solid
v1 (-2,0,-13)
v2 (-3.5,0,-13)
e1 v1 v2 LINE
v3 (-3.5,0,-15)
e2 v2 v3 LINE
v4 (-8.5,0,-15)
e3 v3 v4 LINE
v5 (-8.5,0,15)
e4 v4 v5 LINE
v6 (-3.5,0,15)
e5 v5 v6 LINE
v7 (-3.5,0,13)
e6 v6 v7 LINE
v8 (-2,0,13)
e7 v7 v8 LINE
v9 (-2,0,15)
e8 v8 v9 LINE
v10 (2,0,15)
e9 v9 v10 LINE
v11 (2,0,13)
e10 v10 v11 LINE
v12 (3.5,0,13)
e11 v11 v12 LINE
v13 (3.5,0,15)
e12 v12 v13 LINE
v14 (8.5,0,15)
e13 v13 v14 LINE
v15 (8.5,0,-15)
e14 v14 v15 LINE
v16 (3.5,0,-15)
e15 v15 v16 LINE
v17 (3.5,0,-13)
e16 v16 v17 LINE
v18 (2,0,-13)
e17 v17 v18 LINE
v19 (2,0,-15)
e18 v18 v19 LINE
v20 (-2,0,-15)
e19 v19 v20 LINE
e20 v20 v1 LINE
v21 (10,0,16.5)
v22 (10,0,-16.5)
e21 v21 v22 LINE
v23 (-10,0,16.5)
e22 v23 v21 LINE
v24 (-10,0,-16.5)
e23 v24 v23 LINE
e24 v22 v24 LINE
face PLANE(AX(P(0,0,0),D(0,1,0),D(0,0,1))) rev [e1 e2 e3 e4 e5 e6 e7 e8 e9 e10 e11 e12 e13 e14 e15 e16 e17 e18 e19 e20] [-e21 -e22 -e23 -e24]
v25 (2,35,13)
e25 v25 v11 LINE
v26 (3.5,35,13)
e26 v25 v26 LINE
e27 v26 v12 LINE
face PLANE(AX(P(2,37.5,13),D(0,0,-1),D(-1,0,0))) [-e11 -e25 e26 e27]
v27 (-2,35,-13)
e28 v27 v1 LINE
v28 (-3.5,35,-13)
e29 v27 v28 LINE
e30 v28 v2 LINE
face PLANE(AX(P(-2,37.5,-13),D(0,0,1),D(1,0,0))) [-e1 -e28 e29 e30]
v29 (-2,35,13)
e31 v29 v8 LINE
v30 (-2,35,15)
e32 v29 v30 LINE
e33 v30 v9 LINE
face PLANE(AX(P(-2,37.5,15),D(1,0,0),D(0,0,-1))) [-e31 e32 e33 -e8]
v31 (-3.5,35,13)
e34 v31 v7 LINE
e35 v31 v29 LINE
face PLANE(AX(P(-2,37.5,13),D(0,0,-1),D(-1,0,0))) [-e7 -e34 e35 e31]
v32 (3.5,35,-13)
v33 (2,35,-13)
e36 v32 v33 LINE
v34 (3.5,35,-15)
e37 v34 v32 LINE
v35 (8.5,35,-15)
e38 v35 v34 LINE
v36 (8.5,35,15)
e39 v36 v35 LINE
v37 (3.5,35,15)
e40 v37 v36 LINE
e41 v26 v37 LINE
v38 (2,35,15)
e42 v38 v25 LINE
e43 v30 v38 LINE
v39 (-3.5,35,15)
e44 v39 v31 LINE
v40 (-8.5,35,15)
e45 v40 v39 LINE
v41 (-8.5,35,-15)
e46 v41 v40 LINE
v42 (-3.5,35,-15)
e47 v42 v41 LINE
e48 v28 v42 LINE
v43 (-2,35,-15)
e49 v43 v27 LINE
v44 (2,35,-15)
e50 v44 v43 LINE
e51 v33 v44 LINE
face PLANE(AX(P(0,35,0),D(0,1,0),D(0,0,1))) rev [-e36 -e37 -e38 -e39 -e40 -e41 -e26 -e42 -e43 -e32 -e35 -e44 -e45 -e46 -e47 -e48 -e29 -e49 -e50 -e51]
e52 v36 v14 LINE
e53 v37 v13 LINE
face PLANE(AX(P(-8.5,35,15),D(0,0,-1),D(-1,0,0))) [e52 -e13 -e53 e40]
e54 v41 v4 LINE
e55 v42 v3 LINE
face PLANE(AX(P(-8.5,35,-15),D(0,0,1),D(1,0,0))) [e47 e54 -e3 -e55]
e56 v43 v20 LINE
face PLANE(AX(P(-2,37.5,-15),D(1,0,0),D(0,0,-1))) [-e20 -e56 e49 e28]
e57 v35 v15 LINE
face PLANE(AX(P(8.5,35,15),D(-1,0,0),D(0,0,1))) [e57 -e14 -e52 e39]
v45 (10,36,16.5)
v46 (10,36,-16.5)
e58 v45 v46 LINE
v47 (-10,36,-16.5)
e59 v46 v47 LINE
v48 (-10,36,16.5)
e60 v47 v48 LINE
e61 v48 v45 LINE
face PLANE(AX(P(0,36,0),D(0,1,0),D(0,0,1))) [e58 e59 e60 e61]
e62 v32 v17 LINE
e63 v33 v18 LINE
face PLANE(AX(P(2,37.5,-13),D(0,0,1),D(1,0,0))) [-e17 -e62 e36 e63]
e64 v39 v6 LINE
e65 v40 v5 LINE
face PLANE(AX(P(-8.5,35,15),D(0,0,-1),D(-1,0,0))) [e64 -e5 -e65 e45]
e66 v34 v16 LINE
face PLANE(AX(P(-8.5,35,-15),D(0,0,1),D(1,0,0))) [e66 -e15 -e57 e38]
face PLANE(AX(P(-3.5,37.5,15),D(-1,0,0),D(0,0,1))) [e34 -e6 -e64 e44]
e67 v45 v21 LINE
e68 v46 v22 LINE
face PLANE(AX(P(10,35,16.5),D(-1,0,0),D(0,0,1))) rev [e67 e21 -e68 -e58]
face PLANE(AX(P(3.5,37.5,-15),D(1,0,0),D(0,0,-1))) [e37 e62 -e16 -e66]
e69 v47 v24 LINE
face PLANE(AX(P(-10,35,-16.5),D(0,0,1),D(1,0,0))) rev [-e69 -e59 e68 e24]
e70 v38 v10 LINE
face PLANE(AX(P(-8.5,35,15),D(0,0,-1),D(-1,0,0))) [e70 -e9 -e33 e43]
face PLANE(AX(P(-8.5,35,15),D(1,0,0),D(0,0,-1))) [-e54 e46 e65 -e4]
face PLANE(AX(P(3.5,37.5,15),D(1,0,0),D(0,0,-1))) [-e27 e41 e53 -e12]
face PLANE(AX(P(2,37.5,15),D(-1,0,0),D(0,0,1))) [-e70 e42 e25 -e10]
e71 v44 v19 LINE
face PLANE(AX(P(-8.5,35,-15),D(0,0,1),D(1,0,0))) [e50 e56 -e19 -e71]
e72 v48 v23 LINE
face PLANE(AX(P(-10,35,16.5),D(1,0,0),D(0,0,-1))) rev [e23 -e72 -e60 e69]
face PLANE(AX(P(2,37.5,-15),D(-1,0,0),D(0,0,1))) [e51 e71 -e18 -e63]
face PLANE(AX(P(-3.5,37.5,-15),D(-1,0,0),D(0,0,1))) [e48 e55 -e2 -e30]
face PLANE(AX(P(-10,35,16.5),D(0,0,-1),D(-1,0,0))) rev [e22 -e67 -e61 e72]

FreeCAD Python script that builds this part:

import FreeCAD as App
import Part
import Sketcher
from FreeCAD import Vector
Q = App.Units.Quantity


def add_polygon(sketch, points):
    """Adds a closed chain of lines whose ends are joined by coincident constraints."""
    first, n = sketch.GeometryCount, len(points)
    for a, b in zip(points, points[1:] + points[:1]):
        sketch.addGeometry(Part.LineSegment(App.Vector(*a, 0), App.Vector(*b, 0)), False)
    for i in range(n):
        sketch.addConstraint(Sketcher.Constraint("Coincident", first + i, 2, first + (i + 1) % n, 1))

doc = App.newDocument("Part")
params = doc.addObject("Spreadsheet::Sheet", "Params")
for row, (alias, value) in enumerate([
    ("sketch1_width", "20 mm"),
    ("sketch1_width2", "17 mm"),
    ("sketch1_height", "33 mm"),
    ("sketch1_height2", "30 mm"),
    ("pad1_length", "35 mm"),
    ("sketch2_width", "20 mm"),
    ("sketch2_height", "33 mm"),
    ("pad2_length", "1 mm"),
    ("sketch3_height", "2 mm"),
    ("sketch3_width", "1.5 mm"),
    ("pad3_length", "35 mm"),
], start=1):
    params.set(f"A{row}", alias)
    params.set(f"B{row}", "=" + value)
    params.setAlias(f"B{row}", alias)

body = doc.addObject("PartDesign::Body", "Body")

sketch1 = doc.addObject("Sketcher::SketchObject", "Sketch")
body.addObject(sketch1)
sketch1.AttachmentSupport = (doc.XZ_Plane, [""])
sketch1.MapMode = "FlatFace"
add_polygon(sketch1, [(-10, -16), (-10, 16), (10, 16), (10, -16)])
add_polygon(sketch1, [(8, 15), (-8, 15), (-8, -15), (8, -15)])
sketch1.addConstraint([
    Sketcher.Constraint("Vertical", 0),
    Sketcher.Constraint("Horizontal", 1),
    Sketcher.Constraint("Vertical", 2),
    Sketcher.Constraint("Horizontal", 3),
    Sketcher.Constraint("Horizontal", 4),
    Sketcher.Constraint("Vertical", 5),
    Sketcher.Constraint("Horizontal", 6),
    Sketcher.Constraint("Vertical", 7),
    Sketcher.Constraint("Symmetric", 0, 2, 2, 2, -1, 1),
    Sketcher.Constraint("Symmetric", 4, 2, 6, 2, -1, 1),
    Sketcher.Constraint("DistanceX", 1, 1, 1, 2, Q("20 mm")),
    Sketcher.Constraint("DistanceX", 4, 2, 4, 1, Q("17 mm")),
    Sketcher.Constraint("DistanceY", 0, 1, 0, 2, Q("33 mm")),
    Sketcher.Constraint("DistanceY", 5, 2, 5, 1, Q("30 mm")),
])
sketch1.setExpression("Constraints[18]", "Params.sketch1_width")
sketch1.setExpression("Constraints[19]", "Params.sketch1_width2")
sketch1.setExpression("Constraints[20]", "Params.sketch1_height")
sketch1.setExpression("Constraints[21]", "Params.sketch1_height2")
pad1 = doc.addObject("PartDesign::Pad", "Pad")
body.addObject(pad1)
pad1.Profile = sketch1
pad1.setExpression("Length", "Params.pad1_length")
pad1.Reversed = True

sketch2 = doc.addObject("Sketcher::SketchObject", "Sketch001")
body.addObject(sketch2)
sketch2.AttachmentSupport = (doc.XZ_Plane, [""])
sketch2.MapMode = "FlatFace"
sketch2.AttachmentOffset = App.Placement(Vector(0, 0, -35), App.Rotation())
add_polygon(sketch2, [(-10, -16), (-10, 16), (10, 16), (10, -16)])
sketch2.addConstraint([
    Sketcher.Constraint("Vertical", 0),
    Sketcher.Constraint("Horizontal", 1),
    Sketcher.Constraint("Vertical", 2),
    Sketcher.Constraint("Horizontal", 3),
    Sketcher.Constraint("Symmetric", 0, 2, 2, 2, -1, 1),
    Sketcher.Constraint("DistanceX", 1, 1, 1, 2, Q("20 mm")),
    Sketcher.Constraint("DistanceY", 0, 1, 0, 2, Q("33 mm")),
])
sketch2.setExpression("Constraints[9]", "Params.sketch2_width")
sketch2.setExpression("Constraints[10]", "Params.sketch2_height")
pad2 = doc.addObject("PartDesign::Pad", "Pad001")
body.addObject(pad2)
pad2.Profile = sketch2
pad2.setExpression("Length", "Params.pad2_length")
pad2.Reversed = True

sketch3 = doc.addObject("Sketcher::SketchObject", "Sketch002")
body.addObject(sketch3)
sketch3.AttachmentSupport = (doc.XZ_Plane, [""])
sketch3.MapMode = "FlatFace"
add_polygon(sketch3, [(-3.5, -13), (-3.5, -15), (-2, -15), (-2, -13)])
add_polygon(sketch3, [(2, -13), (2, -15), (3.5, -15), (3.5, -13)])
add_polygon(sketch3, [(2, 15), (2, 13), (3.5, 13), (3.5, 15)])
add_polygon(sketch3, [(-3.5, 15), (-3.5, 13), (-2, 13), (-2, 15)])
sketch3.addConstraint([
    Sketcher.Constraint("Vertical", 0),
    Sketcher.Constraint("Horizontal", 1),
    Sketcher.Constraint("Vertical", 2),
    Sketcher.Constraint("Horizontal", 3),
    Sketcher.Constraint("Vertical", 4),
    Sketcher.Constraint("Horizontal", 5),
    Sketcher.Constraint("Vertical", 6),
    Sketcher.Constraint("Horizontal", 7),
    Sketcher.Constraint("Vertical", 8),
    Sketcher.Constraint("Horizontal", 9),
    Sketcher.Constraint("Vertical", 10),
    Sketcher.Constraint("Horizontal", 11),
    Sketcher.Constraint("Vertical", 12),
    Sketcher.Constraint("Horizontal", 13),
    Sketcher.Constraint("Vertical", 14),
    Sketcher.Constraint("Horizontal", 15),
    Sketcher.Constraint("Symmetric", 2, 2, 8, 2, -1, 1),
    Sketcher.Constraint("Symmetric", 0, 2, 10, 2, -1, 1),
    Sketcher.Constraint("Symmetric", 6, 2, 12, 2, -1, 1),
    Sketcher.Constraint("Symmetric", 4, 2, 14, 2, -1, 1),
    Sketcher.Constraint("Symmetric", 1, 2, 4, 2, -2),
    Sketcher.Constraint("Symmetric", 3, 2, 6, 2, -2),
    Sketcher.Constraint("DistanceY", 0, 2, 0, 1, Q("2 mm")),
    Sketcher.Constraint("DistanceX", 1, 1, 1, 2, Q("1.5 mm")),
    Sketcher.Constraint("DistanceY", 0, 2, -1, 1, Q("15 mm")),
    Sketcher.Constraint("DistanceX", 1, 2, -1, 1, Q("2 mm")),
])
sketch3.setExpression("Constraints[38]", "Params.sketch3_height")
sketch3.setExpression("Constraints[39]", "Params.sketch3_width")
pad3 = doc.addObject("PartDesign::Pad", "Pad002")
body.addObject(pad3)
pad3.Profile = sketch3
pad3.setExpression("Length", "Params.pad3_length")
pad3.Reversed = True

doc.recompute()
